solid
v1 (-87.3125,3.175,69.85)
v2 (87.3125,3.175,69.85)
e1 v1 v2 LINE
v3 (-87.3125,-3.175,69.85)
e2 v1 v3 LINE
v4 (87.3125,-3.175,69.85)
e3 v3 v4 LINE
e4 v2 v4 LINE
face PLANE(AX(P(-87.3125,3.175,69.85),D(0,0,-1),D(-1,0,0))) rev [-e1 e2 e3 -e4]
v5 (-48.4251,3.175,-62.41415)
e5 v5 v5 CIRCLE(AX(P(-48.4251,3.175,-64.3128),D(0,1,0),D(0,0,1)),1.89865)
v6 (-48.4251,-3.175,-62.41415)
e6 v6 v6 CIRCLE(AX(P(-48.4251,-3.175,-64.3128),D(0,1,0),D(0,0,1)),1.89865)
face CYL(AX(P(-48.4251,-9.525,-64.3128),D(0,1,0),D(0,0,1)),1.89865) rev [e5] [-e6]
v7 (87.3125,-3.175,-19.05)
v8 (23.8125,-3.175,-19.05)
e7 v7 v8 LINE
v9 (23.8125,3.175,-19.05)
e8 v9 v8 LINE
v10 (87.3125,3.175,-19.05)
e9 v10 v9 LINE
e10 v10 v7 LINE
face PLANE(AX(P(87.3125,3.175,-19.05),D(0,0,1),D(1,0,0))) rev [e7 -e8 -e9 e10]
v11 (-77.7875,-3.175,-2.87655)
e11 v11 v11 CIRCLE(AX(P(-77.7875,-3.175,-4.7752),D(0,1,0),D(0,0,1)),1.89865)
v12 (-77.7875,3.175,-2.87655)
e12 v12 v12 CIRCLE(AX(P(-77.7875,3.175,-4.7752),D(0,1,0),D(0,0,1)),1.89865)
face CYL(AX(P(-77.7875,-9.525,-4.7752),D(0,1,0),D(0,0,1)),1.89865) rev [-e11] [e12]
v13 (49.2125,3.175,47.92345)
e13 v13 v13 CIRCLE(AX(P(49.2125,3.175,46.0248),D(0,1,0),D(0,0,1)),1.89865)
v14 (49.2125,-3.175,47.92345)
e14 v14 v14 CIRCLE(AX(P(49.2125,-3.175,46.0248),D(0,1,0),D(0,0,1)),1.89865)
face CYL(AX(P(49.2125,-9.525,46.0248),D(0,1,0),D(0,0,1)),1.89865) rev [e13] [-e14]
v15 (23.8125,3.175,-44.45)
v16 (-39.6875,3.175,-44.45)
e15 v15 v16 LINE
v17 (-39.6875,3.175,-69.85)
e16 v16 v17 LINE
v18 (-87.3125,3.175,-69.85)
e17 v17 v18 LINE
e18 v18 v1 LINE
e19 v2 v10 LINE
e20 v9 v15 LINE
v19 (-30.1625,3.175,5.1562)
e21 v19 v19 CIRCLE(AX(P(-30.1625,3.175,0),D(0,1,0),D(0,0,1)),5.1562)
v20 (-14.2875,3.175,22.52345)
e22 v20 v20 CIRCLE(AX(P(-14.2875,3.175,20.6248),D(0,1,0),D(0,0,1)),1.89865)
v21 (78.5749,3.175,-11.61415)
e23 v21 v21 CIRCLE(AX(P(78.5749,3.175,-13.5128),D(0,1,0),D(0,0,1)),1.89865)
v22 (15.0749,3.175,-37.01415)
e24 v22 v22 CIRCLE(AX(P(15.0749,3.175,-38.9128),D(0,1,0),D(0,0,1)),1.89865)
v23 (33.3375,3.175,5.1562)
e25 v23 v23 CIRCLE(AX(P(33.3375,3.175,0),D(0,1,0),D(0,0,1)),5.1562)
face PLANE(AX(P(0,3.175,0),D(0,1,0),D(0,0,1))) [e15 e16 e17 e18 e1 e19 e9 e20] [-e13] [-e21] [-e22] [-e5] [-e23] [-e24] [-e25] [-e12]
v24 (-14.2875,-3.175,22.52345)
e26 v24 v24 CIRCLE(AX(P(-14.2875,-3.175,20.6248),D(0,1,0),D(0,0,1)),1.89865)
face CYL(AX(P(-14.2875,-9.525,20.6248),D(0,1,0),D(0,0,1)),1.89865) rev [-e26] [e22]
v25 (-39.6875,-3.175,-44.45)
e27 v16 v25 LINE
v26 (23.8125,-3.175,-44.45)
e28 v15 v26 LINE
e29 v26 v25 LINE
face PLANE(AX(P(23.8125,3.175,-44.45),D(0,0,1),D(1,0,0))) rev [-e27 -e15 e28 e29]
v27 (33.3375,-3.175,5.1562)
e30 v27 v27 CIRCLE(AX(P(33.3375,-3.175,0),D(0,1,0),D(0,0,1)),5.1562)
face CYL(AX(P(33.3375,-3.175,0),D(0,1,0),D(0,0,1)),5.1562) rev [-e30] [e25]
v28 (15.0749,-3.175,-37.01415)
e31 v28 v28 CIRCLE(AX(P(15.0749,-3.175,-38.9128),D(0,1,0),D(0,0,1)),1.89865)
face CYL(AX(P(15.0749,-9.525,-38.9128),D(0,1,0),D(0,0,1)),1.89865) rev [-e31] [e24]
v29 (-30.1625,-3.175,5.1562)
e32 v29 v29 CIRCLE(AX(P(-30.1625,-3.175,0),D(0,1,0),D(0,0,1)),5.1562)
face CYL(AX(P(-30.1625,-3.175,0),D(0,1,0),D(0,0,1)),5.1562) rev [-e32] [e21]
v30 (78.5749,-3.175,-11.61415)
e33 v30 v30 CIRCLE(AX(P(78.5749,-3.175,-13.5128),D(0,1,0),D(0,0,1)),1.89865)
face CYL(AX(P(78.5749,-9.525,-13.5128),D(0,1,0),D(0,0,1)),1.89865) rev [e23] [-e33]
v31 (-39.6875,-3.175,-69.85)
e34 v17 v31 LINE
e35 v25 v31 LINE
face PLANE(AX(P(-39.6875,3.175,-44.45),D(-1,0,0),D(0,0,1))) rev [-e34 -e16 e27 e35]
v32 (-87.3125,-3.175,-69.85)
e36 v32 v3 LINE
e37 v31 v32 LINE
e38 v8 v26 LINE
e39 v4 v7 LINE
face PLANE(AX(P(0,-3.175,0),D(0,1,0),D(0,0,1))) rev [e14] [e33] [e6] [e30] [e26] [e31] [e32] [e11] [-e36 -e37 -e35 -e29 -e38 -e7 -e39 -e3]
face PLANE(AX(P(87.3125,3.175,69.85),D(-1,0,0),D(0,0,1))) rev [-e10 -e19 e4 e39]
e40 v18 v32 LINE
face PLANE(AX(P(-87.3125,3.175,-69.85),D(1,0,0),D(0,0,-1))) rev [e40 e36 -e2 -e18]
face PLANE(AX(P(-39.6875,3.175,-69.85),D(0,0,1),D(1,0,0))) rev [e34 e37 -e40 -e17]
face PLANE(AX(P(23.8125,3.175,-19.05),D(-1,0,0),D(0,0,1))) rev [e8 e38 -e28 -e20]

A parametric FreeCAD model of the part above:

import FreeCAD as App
import Part
import Sketcher

V = App.Vector
Q = App.Units.Quantity


def add_polygon(sketch, points):
    """Adds a closed chain of lines whose ends are joined by coincident constraints."""
    first, n = sketch.GeometryCount, len(points)
    for a, b in zip(points, points[1:] + points[:1]):
        sketch.addGeometry(Part.LineSegment(App.Vector(*a, 0), App.Vector(*b, 0)), False)
    for i in range(n):
        sketch.addConstraint(Sketcher.Constraint("Coincident", first + i, 2, first + (i + 1) % n, 1))

doc = App.newDocument("Part")
body = doc.addObject("PartDesign::Body", "Body")

# Sketch on XZ plane
sketch1 = body.newObject("Sketcher::SketchObject", "Sketch")
sketch1.AttachmentSupport = (doc.getObject("XZ_Plane"), [""])
sketch1.MapMode = "FlatFace"
add_polygon(sketch1, [(-87, 70), (87, 70), (87, -19), (24, -19), (24, -44), (-40, -44), (-40, -70), (-87, -70)])  # lines 0-7
sketch1.addConstraint([
    Sketcher.Constraint("Horizontal", 0),
    Sketcher.Constraint("Vertical", 1),
    Sketcher.Constraint("Horizontal", 2),
    Sketcher.Constraint("Vertical", 3),
    Sketcher.Constraint("Horizontal", 4),
    Sketcher.Constraint("Vertical", 5),
    Sketcher.Constraint("Horizontal", 6),
    Sketcher.Constraint("Vertical", 7),
    Sketcher.Constraint("Symmetric", 0, 2, 6, 2, -1, 1),
    Sketcher.Constraint("Equal", 2, 4),
    Sketcher.Constraint("Equal", 3, 5),
    Sketcher.Constraint("DistanceY", 3, 2, 3, 1, Q("1 in")),
    Sketcher.Constraint("DistanceX", 2, 2, 2, 1, Q("2.5 in")),
    Sketcher.Constraint("DistanceY", 1, 2, 1, 1, Q("3.5 in")),
    Sketcher.Constraint("DistanceX", 0, 1, 0, 2, Q("6.875 in")),
])
pad1 = body.newObject("PartDesign::Pad", "Pad")
pad1.Profile = sketch1
pad1.Length = Q("0.25 in")
pad1.Midplane = True

# Sketch on XZ plane
sketch2 = body.newObject("Sketcher::SketchObject", "Sketch001")
sketch2.AttachmentSupport = (doc.getObject("XZ_Plane"), [""])
sketch2.MapMode = "FlatFace"
sketch2.AttachmentOffset = App.Placement(V(0, 0, -0.125 * 25.4), App.Rotation())
sketch2.addGeometry([
    Part.Circle(V(-30, 0, 0), V(0, 0, 1), 5),
    Part.Circle(V(33, 0, 0), V(0, 0, 1), 5),
], False)
sketch2.addConstraint([
    Sketcher.Constraint("Equal", 0, 1),
    Sketcher.Constraint("PointOnObject", 0, 3, -1),
    Sketcher.Constraint("PointOnObject", 1, 3, -1),
    Sketcher.Constraint("Diameter", 0, Q("0.406 in")),
    Sketcher.Constraint("DistanceX", 0, 3, 1, 3, Q("2.5 in")),
    Sketcher.Constraint("DistanceX", 0, 3, -1, 1, Q("1.1875 in")),
])
pocket1 = body.newObject("PartDesign::Pocket", "Pocket")
pocket1.Profile = sketch2
pocket1.Type = "ThroughAll"
pocket1.Reversed = True

# Sketch on XZ plane
sketch3 = body.newObject("Sketcher::SketchObject", "Sketch002")
sketch3.AttachmentSupport = (doc.getObject("XZ_Plane"), [""])
sketch3.MapMode = "FlatFace"
sketch3.AttachmentOffset = App.Placement(V(0, 0, -0.125 * 25.4), App.Rotation())
sketch3.addGeometry([
    Part.Circle(V(-77.8, -4.8, 0), V(0, 0, 1), 1.9),  # 0
    Part.Circle(V(-48.4, -64.3, 0), V(0, 0, 1), 1.9),  # 1
    Part.Circle(V(-14.3, 20.6, 0), V(0, 0, 1), 1.9),  # 2
    Part.Circle(V(15.1, -38.9, 0), V(0, 0, 1), 1.9),  # 3
    Part.Circle(V(49.2, 46, 0), V(0, 0, 1), 1.9),  # 4
    Part.Circle(V(78.6, -13.5, 0), V(0, 0, 1), 1.9),  # 5
], False)
sketch3.addConstraint([
    Sketcher.Constraint("Equal", 0, 1),
    Sketcher.Constraint("Equal", 1, 2),
    Sketcher.Constraint("Equal", 2, 3),
    Sketcher.Constraint("Equal", 3, 4),
    Sketcher.Constraint("Equal", 4, 5),
    Sketcher.Constraint("DistanceY", 0, 3, 2, 3, Q("1 in")),
    Sketcher.Constraint("DistanceY", 1, 3, 3, 3, Q("1 in")),
    Sketcher.Constraint("DistanceY", 2, 3, 4, 3, Q("1 in")),
    Sketcher.Constraint("DistanceX", 0, 3, 4, 3, Q("5 in")),
    Sketcher.Constraint("DistanceY", 3, 3, 5, 3, Q("1 in")),
    Sketcher.Constraint("DistanceX", 1, 3, 5, 3, Q("5 in")),
    Sketcher.Constraint("Diameter", 0, Q("0.1495 in")),
    Sketcher.Constraint("DistanceX", 0, 3, 2, 3, Q("2.5 in")),
    Sketcher.Constraint("DistanceX", 1, 3, 3, 3, Q("2.5 in")),
    Sketcher.Constraint("DistanceX", 0, 3, -1, 1, Q("3.0625 in")),
    Sketcher.Constraint("DistanceY", 0, 3, -1, 1, Q("0.188 in")),
    Sketcher.Constraint("DistanceY", 1, 3, -1, 1, Q("2.532 in")),
    Sketcher.Constraint("DistanceX", 0, 3, 1, 3, Q("1.156 in")),
])
pocket2 = body.newObject("PartDesign::Pocket", "Pocket001")
pocket2.Profile = sketch3
pocket2.Length = Q("0.5 in")
pocket2.Reversed = True

doc.recompute()
